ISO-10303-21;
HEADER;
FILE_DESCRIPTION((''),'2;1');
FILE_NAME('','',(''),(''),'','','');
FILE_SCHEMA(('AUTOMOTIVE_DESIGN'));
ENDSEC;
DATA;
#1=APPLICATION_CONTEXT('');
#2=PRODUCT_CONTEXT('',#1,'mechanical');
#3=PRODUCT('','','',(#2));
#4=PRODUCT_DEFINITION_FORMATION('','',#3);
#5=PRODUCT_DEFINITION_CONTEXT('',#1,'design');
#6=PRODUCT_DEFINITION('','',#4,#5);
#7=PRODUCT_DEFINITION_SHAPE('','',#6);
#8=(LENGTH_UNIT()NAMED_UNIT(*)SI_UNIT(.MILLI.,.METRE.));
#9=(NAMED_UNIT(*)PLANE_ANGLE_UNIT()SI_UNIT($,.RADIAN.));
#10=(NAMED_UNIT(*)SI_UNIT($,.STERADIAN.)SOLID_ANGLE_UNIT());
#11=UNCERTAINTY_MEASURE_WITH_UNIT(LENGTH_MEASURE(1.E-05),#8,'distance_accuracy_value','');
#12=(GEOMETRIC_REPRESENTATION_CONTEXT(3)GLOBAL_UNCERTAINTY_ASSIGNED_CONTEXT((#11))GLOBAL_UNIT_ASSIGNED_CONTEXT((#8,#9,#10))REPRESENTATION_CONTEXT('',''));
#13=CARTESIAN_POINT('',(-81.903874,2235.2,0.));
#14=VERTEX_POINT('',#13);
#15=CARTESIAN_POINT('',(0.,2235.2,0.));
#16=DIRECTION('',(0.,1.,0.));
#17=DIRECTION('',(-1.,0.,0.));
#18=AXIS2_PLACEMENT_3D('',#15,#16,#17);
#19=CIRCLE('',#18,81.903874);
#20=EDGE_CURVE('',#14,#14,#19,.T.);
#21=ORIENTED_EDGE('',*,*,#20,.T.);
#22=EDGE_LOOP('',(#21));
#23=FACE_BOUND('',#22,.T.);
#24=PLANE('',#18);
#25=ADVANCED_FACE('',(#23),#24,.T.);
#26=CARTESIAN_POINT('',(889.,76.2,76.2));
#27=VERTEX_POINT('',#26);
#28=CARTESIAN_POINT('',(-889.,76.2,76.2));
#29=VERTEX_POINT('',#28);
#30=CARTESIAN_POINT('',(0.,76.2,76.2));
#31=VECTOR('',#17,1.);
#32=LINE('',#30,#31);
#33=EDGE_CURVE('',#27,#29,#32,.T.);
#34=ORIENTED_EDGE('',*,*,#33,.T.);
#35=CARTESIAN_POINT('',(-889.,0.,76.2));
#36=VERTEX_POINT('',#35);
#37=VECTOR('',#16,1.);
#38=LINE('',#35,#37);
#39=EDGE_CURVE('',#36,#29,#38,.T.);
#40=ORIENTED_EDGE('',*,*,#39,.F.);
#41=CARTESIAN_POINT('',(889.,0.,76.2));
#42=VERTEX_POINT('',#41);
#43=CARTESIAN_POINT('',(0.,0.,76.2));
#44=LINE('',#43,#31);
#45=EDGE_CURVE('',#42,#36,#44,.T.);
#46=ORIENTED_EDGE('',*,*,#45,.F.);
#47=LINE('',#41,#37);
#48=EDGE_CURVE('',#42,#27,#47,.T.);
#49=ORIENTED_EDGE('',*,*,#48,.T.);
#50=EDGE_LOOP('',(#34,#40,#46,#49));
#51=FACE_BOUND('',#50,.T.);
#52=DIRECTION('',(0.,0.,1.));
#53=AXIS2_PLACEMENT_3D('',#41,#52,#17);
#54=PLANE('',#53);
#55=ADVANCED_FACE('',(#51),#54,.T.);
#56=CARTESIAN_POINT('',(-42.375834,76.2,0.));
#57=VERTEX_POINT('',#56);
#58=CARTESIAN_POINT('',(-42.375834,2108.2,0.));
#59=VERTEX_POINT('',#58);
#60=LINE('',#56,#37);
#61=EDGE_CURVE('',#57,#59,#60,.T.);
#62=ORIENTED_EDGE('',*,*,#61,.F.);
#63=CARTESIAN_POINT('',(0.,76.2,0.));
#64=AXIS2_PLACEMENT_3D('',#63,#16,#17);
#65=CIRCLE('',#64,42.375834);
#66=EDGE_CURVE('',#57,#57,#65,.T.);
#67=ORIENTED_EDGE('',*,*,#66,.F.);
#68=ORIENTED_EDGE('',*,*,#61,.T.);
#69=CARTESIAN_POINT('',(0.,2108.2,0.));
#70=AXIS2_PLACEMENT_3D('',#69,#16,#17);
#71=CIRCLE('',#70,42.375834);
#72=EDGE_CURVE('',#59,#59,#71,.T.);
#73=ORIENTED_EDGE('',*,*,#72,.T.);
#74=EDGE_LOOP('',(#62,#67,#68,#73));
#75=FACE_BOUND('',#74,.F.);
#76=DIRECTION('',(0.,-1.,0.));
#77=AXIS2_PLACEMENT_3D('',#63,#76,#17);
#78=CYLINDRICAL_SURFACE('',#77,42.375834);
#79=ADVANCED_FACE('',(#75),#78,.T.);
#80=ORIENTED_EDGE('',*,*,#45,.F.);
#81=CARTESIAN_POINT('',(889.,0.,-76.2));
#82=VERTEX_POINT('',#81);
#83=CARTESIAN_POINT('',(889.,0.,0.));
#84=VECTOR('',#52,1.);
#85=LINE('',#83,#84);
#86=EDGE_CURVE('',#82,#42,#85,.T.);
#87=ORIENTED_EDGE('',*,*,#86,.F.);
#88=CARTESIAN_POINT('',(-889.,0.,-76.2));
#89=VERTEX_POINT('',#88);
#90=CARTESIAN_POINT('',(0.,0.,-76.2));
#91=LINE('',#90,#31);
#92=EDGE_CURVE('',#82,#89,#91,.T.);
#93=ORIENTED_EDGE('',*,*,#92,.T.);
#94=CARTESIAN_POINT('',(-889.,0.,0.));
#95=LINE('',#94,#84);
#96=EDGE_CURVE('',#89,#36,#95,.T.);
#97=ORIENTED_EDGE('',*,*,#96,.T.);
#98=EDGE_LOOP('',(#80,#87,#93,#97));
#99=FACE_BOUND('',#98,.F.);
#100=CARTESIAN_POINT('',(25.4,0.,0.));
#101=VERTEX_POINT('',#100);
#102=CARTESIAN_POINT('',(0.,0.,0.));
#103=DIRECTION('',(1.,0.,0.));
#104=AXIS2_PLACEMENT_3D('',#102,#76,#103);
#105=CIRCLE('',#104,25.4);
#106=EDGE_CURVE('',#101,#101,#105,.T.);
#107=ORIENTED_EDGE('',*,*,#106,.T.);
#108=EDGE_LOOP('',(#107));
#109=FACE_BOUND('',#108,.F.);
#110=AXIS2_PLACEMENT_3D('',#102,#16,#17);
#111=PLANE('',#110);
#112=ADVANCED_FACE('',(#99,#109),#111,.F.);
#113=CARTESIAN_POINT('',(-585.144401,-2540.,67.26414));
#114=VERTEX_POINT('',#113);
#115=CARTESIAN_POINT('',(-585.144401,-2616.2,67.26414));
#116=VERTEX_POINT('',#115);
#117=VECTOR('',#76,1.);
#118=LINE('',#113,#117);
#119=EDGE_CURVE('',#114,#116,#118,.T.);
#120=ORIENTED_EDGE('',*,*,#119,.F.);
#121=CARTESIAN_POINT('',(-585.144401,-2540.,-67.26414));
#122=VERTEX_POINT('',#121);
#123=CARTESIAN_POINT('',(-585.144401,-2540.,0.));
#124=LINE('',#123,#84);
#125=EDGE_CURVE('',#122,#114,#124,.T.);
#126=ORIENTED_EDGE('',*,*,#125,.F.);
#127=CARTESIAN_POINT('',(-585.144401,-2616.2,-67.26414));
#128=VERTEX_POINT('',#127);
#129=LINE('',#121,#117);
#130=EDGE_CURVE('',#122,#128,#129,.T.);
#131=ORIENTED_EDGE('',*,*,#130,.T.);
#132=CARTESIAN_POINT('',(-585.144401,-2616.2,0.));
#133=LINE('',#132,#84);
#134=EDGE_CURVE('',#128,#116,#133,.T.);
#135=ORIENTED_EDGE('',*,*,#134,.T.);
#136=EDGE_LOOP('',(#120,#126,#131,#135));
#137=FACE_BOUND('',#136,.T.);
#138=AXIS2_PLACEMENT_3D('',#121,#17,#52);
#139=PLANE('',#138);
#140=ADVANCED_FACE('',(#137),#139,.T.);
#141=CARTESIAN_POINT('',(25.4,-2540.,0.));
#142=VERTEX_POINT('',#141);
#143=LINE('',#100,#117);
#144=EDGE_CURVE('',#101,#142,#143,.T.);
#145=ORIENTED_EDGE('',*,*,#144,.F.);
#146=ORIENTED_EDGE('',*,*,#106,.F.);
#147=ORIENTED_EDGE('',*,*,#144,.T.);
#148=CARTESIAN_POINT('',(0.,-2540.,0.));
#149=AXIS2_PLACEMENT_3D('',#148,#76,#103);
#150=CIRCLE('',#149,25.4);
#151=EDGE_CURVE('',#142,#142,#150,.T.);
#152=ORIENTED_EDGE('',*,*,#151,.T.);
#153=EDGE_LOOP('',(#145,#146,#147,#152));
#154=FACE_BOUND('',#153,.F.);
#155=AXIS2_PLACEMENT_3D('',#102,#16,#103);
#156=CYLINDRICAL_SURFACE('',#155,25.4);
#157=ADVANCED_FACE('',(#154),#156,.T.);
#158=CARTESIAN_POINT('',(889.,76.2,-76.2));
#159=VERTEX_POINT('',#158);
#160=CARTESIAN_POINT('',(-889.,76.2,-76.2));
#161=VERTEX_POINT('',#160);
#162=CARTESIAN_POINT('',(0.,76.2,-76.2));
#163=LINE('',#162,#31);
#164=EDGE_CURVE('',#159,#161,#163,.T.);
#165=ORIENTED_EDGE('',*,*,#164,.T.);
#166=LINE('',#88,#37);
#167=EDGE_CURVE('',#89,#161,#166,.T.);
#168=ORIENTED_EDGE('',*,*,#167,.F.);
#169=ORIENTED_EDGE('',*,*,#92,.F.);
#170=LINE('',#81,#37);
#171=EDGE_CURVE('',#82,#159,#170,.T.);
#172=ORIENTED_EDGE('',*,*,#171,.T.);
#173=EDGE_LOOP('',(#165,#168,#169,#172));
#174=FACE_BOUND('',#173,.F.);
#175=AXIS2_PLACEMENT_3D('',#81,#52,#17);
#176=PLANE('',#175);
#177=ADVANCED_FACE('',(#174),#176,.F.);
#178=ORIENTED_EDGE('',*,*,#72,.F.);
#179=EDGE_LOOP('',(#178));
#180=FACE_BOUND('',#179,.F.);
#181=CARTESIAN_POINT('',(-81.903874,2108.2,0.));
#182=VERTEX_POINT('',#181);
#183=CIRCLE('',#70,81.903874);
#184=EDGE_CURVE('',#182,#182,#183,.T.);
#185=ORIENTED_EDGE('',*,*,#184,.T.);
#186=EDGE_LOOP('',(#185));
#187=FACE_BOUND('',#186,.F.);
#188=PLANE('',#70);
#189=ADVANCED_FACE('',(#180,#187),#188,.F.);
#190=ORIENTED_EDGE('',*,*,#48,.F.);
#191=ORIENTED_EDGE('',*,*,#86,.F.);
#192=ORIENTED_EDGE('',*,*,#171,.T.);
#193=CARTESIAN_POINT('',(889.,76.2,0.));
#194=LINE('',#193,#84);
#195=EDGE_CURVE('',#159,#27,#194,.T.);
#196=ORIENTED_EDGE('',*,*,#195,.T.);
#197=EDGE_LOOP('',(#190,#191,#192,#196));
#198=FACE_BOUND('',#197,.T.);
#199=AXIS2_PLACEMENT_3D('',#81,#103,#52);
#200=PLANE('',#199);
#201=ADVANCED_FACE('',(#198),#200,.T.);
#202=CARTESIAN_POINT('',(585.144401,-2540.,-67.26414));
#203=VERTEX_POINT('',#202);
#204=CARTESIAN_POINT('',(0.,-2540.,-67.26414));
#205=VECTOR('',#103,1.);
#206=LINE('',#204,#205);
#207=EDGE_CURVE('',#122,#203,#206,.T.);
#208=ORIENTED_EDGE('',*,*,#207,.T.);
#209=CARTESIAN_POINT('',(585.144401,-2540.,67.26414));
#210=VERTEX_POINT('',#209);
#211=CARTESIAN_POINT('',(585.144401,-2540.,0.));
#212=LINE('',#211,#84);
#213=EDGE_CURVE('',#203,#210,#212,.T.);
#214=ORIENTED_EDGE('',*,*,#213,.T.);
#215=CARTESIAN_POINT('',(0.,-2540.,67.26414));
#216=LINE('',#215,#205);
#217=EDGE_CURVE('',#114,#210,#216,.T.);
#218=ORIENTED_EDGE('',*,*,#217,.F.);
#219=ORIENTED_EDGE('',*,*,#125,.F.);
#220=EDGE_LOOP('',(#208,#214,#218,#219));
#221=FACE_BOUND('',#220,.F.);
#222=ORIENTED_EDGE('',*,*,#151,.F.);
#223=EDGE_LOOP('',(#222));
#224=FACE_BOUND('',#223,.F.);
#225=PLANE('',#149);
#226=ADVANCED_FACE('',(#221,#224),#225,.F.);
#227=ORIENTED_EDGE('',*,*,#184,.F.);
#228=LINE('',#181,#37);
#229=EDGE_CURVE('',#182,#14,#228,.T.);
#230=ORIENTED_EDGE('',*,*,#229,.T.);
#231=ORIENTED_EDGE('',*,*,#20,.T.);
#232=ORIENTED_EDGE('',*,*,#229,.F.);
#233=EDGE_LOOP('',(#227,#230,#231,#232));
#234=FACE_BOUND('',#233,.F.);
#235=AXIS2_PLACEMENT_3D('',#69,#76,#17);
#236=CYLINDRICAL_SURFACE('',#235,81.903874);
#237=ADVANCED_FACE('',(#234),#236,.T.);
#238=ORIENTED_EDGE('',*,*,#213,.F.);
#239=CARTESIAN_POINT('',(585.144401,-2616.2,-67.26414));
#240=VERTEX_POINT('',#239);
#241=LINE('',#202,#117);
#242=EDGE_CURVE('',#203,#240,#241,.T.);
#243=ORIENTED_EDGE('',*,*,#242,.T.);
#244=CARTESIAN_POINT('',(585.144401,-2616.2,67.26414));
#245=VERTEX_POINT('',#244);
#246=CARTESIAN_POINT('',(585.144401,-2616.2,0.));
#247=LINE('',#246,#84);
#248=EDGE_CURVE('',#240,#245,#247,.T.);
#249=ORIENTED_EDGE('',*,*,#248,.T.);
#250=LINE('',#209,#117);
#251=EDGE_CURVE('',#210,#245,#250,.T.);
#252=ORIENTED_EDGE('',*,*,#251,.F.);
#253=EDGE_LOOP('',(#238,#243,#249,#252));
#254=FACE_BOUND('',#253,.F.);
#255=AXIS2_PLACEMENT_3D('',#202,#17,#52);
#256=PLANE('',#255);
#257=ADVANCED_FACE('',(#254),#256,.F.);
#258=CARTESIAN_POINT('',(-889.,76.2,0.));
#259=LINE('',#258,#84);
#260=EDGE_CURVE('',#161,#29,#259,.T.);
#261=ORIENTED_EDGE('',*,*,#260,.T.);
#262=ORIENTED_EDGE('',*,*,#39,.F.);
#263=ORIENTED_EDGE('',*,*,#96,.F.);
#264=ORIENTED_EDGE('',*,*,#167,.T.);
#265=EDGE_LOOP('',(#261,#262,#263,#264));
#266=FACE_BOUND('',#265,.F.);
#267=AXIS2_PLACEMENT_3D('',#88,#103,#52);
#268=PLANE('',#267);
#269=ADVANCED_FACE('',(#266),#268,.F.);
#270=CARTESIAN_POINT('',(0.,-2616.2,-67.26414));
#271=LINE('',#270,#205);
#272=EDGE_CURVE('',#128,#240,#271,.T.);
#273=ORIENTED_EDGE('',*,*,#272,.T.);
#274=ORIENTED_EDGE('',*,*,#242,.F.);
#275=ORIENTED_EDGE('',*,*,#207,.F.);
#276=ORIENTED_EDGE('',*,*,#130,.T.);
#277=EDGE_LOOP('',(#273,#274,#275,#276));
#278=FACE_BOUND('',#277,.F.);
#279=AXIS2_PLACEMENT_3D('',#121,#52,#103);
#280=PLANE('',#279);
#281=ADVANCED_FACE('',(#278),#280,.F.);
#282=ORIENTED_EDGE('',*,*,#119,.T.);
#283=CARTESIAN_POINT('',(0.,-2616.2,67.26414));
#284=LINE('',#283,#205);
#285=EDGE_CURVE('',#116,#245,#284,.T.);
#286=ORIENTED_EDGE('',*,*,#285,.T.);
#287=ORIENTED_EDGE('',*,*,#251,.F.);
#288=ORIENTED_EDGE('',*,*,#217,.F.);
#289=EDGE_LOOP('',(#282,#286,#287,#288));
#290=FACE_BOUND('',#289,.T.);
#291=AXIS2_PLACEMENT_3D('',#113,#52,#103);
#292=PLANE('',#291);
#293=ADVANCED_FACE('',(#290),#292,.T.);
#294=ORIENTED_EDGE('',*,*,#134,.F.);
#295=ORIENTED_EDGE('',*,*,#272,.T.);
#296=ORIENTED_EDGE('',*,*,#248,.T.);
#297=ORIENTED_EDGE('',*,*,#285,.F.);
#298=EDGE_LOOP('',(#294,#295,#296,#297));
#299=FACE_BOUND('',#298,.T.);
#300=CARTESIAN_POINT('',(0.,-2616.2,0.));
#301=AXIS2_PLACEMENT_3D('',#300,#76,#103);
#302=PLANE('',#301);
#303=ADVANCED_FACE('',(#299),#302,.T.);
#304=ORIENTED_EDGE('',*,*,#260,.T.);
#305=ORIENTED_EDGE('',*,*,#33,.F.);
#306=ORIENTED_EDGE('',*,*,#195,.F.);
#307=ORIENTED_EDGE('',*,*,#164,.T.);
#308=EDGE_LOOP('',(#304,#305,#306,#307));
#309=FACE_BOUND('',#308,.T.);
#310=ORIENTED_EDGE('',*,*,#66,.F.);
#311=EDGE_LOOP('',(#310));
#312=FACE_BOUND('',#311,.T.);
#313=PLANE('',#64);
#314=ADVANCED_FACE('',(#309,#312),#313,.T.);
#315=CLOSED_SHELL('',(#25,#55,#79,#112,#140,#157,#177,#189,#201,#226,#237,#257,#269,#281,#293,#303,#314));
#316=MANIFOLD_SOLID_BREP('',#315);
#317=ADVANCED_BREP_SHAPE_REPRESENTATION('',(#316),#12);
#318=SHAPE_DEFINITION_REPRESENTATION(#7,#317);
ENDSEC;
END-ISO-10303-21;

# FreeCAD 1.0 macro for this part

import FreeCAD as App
import Part
import Sketcher
from FreeCAD import Vector
Q = App.Units.Quantity

doc = App.newDocument("Part")
body = doc.addObject("PartDesign::Body", "Body")

# Sketch on XZ plane
sketch1 = body.newObject("Sketcher::SketchObject", "Sketch")
sketch1.AttachmentSupport = (doc.getObject("XZ_Plane"), [""])
sketch1.MapMode = "FlatFace"
sketch1.addGeometry(Part.Circle(Vector(0, 0, 0), Vector(0, 0, 1), 25.4), False)
sketch1.addConstraint(Sketcher.Constraint("Coincident", 0, 3, -1, 1))
sketch1.addConstraint(Sketcher.Constraint("Diameter", 0, Q("2 in")))
pad1 = body.newObject("PartDesign::Pad", "Pad")
pad1.Profile = sketch1
pad1.Length = Q("100 in")

# Sketch on XZ plane
sketch2 = body.newObject("Sketcher::SketchObject", "Sketch001")
sketch2.AttachmentSupport = (doc.getObject("XZ_Plane"), [""])
sketch2.MapMode = "FlatFace"
sketch2.AttachmentOffset = App.Placement(Vector(0, 0, 100 * 25.4), App.Rotation())
sketch2.addGeometry(Part.LineSegment(Vector(-585.144401, 67.26414, 0), Vector(-585.144401, -67.26414, 0)), False)
sketch2.addGeometry(Part.LineSegment(Vector(-585.144401, -67.26414, 0), Vector(585.144401, -67.26414, 0)), False)
sketch2.addGeometry(Part.LineSegment(Vector(585.144401, -67.26414, 0), Vector(585.144401, 67.26414, 0)), False)
sketch2.addGeometry(Part.LineSegment(Vector(585.144401, 67.26414, 0), Vector(-585.144401, 67.26414, 0)), False)
sketch2.addConstraint(Sketcher.Constraint("Coincident", 0, 2, 1, 1))
sketch2.addConstraint(Sketcher.Constraint("Coincident", 1, 2, 2, 1))
sketch2.addConstraint(Sketcher.Constraint("Coincident", 2, 2, 3, 1))
sketch2.addConstraint(Sketcher.Constraint("Coincident", 3, 2, 0, 1))
sketch2.addConstraint(Sketcher.Constraint("Vertical", 0))
sketch2.addConstraint(Sketcher.Constraint("Horizontal", 1))
sketch2.addConstraint(Sketcher.Constraint("Vertical", 2))
sketch2.addConstraint(Sketcher.Constraint("Horizontal", 3))
sketch2.addConstraint(Sketcher.Constraint("Symmetric", 0, 2, 2, 2, -1, 1))
sketch2.addConstraint(Sketcher.Constraint("DistanceX", 1, 1, 1, 2, Q("1170.288802 mm")))
sketch2.addConstraint(Sketcher.Constraint("DistanceY", 0, 2, 0, 1, Q("134.52828 mm")))
pad2 = body.newObject("PartDesign::Pad", "Pad001")
pad2.Profile = sketch2
pad2.Length = Q("3 in")

# Sketch on XZ plane
sketch3 = body.newObject("Sketcher::SketchObject", "Sketch002")
sketch3.AttachmentSupport = (doc.getObject("XZ_Plane"), [""])
sketch3.MapMode = "FlatFace"
sketch3.addGeometry(Part.LineSegment(Vector(889, 76.2, 0), Vector(889, -76.2, 0)), False)
sketch3.addGeometry(Part.LineSegment(Vector(889, -76.2, 0), Vector(-889, -76.2, 0)), False)
sketch3.addGeometry(Part.LineSegment(Vector(-889, -76.2, 0), Vector(-889, 76.2, 0)), False)
sketch3.addGeometry(Part.LineSegment(Vector(-889, 76.2, 0), Vector(889, 76.2, 0)), False)
sketch3.addConstraint(Sketcher.Constraint("Coincident", 0, 2, 1, 1))
sketch3.addConstraint(Sketcher.Constraint("Coincident", 1, 2, 2, 1))
sketch3.addConstraint(Sketcher.Constraint("Coincident", 2, 2, 3, 1))
sketch3.addConstraint(Sketcher.Constraint("Coincident", 3, 2, 0, 1))
sketch3.addConstraint(Sketcher.Constraint("Vertical", 0))
sketch3.addConstraint(Sketcher.Constraint("Horizontal", 1))
sketch3.addConstraint(Sketcher.Constraint("Vertical", 2))
sketch3.addConstraint(Sketcher.Constraint("Horizontal", 3))
sketch3.addConstraint(Sketcher.Constraint("Symmetric", 0, 2, 2, 2, -1, 1))
sketch3.addConstraint(Sketcher.Constraint("DistanceX", 1, 2, 1, 1, Q("70 in")))
sketch3.addConstraint(Sketcher.Constraint("DistanceY", 0, 2, 0, 1, Q("6 in")))
pad3 = body.newObject("PartDesign::Pad", "Pad002")
pad3.Profile = sketch3
pad3.Length = Q("3 in")
pad3.Reversed = True

# Sketch on XZ plane
sketch4 = body.newObject("Sketcher::SketchObject", "Sketch003")
sketch4.AttachmentSupport = (doc.getObject("XZ_Plane"), [""])
sketch4.MapMode = "FlatFace"
sketch4.AttachmentOffset = App.Placement(Vector(0, 0, -3 * 25.4), App.Rotation())
sketch4.addGeometry(Part.Circle(Vector(0, 0, 0), Vector(0, 0, 1), 42.375834), False)
sketch4.addConstraint(Sketcher.Constraint("Coincident", 0, 3, -1, 1))
sketch4.addConstraint(Sketcher.Constraint("Diameter", 0, Q("84.751668 mm")))
pad4 = body.newObject("PartDesign::Pad", "Pad003")
pad4.Profile = sketch4
pad4.Length = Q("80 in")
pad4.Reversed = True

# Sketch on XZ plane
sketch5 = body.newObject("Sketcher::SketchObject", "Sketch004")
sketch5.AttachmentSupport = (doc.getObject("XZ_Plane"), [""])
sketch5.MapMode = "FlatFace"
sketch5.AttachmentOffset = App.Placement(Vector(0, 0, -83 * 25.4), App.Rotation())
sketch5.addGeometry(Part.Circle(Vector(0, 0, 0), Vector(0, 0, 1), 81.903874), False)
sketch5.addConstraint(Sketcher.Constraint("Coincident", 0, 3, -1, 1))
sketch5.addConstraint(Sketcher.Constraint("Diameter", 0, Q("163.807748 mm")))
pad5 = body.newObject("PartDesign::Pad", "Pad004")
pad5.Profile = sketch5
pad5.Length = Q("5 in")
pad5.Reversed = True

doc.recompute()
